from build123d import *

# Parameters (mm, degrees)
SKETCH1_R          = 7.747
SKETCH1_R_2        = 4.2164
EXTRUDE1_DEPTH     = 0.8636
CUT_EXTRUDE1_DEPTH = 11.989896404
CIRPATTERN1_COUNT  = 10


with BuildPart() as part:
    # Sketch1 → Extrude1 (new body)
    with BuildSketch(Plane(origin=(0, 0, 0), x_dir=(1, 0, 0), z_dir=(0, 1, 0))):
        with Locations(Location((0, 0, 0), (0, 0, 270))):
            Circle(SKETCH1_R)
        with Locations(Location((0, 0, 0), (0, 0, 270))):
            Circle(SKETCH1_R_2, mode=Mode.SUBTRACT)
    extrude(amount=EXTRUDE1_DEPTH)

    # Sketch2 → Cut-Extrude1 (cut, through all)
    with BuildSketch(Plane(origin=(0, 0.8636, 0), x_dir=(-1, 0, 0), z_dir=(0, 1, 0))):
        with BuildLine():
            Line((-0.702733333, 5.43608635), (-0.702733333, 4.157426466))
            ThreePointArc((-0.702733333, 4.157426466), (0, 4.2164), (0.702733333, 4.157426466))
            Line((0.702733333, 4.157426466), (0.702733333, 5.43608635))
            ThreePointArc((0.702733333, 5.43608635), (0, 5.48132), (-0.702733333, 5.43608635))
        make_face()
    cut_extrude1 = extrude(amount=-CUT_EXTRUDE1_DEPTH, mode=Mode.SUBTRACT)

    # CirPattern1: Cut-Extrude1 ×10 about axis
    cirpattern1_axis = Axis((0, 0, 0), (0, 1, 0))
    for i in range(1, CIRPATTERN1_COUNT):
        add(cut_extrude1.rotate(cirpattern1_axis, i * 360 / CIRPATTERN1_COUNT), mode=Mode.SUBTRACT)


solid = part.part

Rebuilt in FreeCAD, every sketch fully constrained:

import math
import FreeCAD as App
import Part
import Sketcher
from FreeCAD import Vector
Q = App.Units.Quantity

doc = App.newDocument("Part")
body = doc.addObject("PartDesign::Body", "Body")

# Sketch on XZ plane
sketch1 = body.newObject("Sketcher::SketchObject", "Sketch")
sketch1.AttachmentSupport = (doc.getObject("XZ_Plane"), [""])
sketch1.MapMode = "FlatFace"
sketch1.addGeometry(Part.Circle(Vector(0, 0, 0), Vector(0, 0, 1), 7.7), False)
sketch1.addGeometry(Part.Circle(Vector(0, 0, 0), Vector(0, 0, 1), 4.2), False)
sketch1.addConstraint(Sketcher.Constraint("Coincident", 0, 3, -1, 1))
sketch1.addConstraint(Sketcher.Constraint("Coincident", 1, 3, -1, 1))
sketch1.addConstraint(Sketcher.Constraint("Diameter", 0, Q("0.61 in")))
sketch1.addConstraint(Sketcher.Constraint("Diameter", 1, Q("0.332 in")))
pad1 = body.newObject("PartDesign::Pad", "Pad")
pad1.Profile = sketch1
pad1.Length = Q("0.034 in")
pad1.Reversed = True

# Sketch on XZ plane
sketch2 = body.newObject("Sketcher::SketchObject", "Sketch001")
sketch2.AttachmentSupport = (doc.getObject("XZ_Plane"), [""])
sketch2.MapMode = "FlatFace"
sketch2.AttachmentOffset = App.Placement(Vector(0, 0, -0.034 * 25.4), App.Rotation())
sketch2.addGeometry(Part.LineSegment(Vector(0.7, 5.4, 0), Vector(0.7, 4.2, 0)), False)
sketch2.addGeometry(Part.ArcOfCircle(Part.Circle(Vector(0, 0, 0), Vector(0, 0, 1), 4.2), math.radians(80.41), math.radians(99.59)), False)
sketch2.addGeometry(Part.LineSegment(Vector(-0.7, 4.2, 0), Vector(-0.7, 5.4, 0)), False)
sketch2.addGeometry(Part.ArcOfCircle(Part.Circle(Vector(0, 0, 0), Vector(0, 0, 1), 5.5), math.radians(82.63), math.radians(97.37)), False)
sketch2.addConstraint(Sketcher.Constraint("Coincident", 0, 2, 1, 1))
sketch2.addConstraint(Sketcher.Constraint("Coincident", 1, 2, 2, 1))
sketch2.addConstraint(Sketcher.Constraint("Coincident", 2, 2, 3, 2))
sketch2.addConstraint(Sketcher.Constraint("Coincident", 3, 1, 0, 1))
sketch2.addConstraint(Sketcher.Constraint("Vertical", 0))
sketch2.addConstraint(Sketcher.Constraint("Vertical", 2))
sketch2.addConstraint(Sketcher.Constraint("Coincident", 1, 3, -1, 1))
sketch2.addConstraint(Sketcher.Constraint("Coincident", 3, 3, -1, 1))
sketch2.addConstraint(Sketcher.Constraint("Horizontal", 0, 2, 1, 2))
sketch2.addConstraint(Sketcher.Constraint("Radius", 1, Q("0.166 in")))
sketch2.addConstraint(Sketcher.Constraint("Radius", 3, Q("0.2158 in")))
sketch2.addConstraint(Sketcher.Constraint("DistanceY", 0, 2, 0, 1, Q("1.27866 mm")))
pocket1 = body.newObject("PartDesign::Pocket", "Pocket")
pocket1.Profile = sketch2
pocket1.Type = "ThroughAll"
pocket1.Reversed = True
doc.recompute()

polarpattern = body.newObject("PartDesign::PolarPattern", "PolarPattern")
polarpattern.Originals = [pocket1]
polarpattern.Axis = (doc.getObject("Y_Axis"), [""])
polarpattern.Angle = 360
polarpattern.Occurrences = 10
body.Tip = polarpattern

doc.recompute()
